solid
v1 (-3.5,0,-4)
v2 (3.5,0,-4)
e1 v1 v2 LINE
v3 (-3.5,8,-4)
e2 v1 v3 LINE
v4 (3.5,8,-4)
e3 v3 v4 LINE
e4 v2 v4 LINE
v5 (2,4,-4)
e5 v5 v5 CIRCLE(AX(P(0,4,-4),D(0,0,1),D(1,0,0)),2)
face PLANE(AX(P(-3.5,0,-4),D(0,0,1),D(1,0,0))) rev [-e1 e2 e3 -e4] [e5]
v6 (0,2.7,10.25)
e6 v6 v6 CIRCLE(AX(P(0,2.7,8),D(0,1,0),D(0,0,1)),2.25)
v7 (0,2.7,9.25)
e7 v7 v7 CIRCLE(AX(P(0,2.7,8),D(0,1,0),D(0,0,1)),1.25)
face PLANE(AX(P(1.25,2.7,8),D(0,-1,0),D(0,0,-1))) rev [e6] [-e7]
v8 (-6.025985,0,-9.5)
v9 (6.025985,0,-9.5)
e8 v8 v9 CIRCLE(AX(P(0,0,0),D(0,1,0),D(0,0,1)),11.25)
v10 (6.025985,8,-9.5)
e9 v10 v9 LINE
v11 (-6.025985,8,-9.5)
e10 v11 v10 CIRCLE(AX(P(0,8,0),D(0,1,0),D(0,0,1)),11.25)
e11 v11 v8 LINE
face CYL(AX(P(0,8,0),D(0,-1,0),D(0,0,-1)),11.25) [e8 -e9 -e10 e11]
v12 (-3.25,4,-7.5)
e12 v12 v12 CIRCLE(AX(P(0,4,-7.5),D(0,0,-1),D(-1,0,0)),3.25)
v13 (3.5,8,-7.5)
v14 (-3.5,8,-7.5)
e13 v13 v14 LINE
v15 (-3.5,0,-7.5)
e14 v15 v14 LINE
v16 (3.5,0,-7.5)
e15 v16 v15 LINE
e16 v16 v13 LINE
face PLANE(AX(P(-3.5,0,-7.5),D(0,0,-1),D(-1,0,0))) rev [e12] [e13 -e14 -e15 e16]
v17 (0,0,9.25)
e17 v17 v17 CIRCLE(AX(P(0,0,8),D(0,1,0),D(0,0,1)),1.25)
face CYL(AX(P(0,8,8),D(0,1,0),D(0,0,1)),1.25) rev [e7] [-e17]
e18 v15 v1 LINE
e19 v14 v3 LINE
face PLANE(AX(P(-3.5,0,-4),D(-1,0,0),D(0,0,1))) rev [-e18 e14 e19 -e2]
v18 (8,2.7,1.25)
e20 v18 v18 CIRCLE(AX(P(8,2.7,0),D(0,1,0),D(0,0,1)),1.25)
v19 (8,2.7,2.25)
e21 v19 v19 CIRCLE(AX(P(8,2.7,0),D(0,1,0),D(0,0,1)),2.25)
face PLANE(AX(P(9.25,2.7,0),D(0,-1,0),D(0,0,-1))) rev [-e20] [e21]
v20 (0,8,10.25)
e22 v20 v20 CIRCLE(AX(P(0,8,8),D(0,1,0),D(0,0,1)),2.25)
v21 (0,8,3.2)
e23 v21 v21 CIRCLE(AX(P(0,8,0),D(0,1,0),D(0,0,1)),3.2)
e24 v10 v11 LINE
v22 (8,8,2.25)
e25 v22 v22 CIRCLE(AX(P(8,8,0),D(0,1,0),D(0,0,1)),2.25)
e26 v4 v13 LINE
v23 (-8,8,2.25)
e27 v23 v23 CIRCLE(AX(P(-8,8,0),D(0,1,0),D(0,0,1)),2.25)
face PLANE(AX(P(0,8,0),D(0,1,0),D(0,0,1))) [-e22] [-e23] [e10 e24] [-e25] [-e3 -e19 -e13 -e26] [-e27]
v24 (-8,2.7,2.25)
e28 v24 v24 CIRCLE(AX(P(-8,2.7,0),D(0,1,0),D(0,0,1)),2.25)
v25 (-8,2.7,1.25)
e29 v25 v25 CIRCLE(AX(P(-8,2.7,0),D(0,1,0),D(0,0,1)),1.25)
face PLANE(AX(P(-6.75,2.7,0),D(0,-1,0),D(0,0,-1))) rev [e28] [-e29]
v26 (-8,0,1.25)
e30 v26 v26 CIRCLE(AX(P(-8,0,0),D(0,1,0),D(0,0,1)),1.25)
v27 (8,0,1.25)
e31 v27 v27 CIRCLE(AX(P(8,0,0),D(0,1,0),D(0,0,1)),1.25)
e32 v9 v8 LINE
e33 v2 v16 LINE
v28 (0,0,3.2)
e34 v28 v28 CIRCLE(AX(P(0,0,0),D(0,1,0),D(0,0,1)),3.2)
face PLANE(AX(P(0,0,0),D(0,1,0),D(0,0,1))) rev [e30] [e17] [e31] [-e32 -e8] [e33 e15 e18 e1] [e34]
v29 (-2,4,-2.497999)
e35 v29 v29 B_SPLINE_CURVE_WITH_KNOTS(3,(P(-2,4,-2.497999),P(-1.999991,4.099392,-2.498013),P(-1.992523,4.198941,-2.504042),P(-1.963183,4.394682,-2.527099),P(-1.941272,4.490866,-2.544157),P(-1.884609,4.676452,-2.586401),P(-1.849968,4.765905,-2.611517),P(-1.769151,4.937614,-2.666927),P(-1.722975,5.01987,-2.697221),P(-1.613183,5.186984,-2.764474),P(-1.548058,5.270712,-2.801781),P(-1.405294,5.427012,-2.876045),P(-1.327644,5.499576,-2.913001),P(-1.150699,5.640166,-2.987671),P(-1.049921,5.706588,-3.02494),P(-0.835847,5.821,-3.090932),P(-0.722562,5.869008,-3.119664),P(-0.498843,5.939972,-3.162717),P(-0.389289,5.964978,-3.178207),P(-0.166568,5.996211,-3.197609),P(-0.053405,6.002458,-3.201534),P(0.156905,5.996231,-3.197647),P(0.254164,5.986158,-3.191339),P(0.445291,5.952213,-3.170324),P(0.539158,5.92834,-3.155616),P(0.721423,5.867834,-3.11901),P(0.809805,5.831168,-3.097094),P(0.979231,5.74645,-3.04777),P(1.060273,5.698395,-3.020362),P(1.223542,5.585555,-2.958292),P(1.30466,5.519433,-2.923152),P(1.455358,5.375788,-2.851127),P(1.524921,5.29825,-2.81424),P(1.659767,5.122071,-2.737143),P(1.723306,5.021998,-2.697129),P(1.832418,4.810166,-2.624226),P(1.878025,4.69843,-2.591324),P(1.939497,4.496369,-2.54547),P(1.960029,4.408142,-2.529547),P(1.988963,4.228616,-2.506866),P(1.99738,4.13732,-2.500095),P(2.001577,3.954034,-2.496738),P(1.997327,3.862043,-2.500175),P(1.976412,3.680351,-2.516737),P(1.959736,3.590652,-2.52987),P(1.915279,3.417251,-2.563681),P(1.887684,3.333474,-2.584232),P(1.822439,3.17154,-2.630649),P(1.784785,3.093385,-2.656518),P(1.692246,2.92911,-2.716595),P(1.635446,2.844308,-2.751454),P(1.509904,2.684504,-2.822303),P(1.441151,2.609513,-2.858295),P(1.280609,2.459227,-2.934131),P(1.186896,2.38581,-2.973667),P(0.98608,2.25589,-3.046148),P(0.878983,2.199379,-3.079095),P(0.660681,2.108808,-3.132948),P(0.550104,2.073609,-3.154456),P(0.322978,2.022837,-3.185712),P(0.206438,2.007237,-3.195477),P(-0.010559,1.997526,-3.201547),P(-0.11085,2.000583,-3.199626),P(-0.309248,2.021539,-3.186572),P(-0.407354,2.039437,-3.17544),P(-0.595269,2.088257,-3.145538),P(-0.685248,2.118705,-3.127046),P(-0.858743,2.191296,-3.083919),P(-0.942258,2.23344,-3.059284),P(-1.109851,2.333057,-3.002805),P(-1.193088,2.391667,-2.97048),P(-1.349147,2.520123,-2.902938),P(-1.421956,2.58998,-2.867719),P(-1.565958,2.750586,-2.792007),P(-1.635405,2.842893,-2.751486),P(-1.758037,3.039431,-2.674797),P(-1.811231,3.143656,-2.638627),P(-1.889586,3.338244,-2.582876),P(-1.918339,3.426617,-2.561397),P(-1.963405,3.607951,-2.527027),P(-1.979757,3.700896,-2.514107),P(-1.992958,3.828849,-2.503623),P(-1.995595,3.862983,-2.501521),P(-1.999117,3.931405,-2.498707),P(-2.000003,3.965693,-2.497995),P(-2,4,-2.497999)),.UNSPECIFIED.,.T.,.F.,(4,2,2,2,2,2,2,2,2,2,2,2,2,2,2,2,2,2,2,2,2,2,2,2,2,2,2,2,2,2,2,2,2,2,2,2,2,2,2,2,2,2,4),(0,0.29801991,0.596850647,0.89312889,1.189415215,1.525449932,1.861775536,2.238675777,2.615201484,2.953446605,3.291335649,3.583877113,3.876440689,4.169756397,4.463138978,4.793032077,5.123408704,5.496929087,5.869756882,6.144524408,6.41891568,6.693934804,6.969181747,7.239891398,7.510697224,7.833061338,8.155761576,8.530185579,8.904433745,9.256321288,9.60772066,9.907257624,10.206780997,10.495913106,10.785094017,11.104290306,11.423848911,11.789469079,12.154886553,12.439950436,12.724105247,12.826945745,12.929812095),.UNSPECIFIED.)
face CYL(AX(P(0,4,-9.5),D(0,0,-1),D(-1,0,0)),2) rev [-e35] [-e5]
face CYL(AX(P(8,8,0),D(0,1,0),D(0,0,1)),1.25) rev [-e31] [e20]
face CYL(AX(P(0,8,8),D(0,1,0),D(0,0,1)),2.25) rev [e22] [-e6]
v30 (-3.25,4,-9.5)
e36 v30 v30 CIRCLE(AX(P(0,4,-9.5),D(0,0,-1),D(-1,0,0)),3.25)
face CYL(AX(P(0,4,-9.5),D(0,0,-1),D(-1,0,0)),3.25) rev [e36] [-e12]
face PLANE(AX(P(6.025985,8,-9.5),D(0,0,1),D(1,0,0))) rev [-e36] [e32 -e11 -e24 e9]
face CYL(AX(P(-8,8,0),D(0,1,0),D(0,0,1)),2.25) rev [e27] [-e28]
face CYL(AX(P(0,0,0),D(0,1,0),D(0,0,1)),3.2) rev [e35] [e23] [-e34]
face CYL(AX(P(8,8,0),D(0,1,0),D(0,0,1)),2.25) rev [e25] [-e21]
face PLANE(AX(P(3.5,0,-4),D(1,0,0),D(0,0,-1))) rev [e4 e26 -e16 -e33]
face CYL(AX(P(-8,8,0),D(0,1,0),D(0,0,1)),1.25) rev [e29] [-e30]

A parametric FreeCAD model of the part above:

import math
import FreeCAD as App
import Part
import Sketcher

V = App.Vector
Q = App.Units.Quantity

doc = App.newDocument("Part")
body = doc.addObject("PartDesign::Body", "Body")

# Sketch on XZ plane
sketch1 = body.newObject("Sketcher::SketchObject", "Sketch")
sketch1.AttachmentSupport = (doc.getObject("XZ_Plane"), [""])
sketch1.MapMode = "FlatFace"
sketch1.addGeometry([
    Part.LineSegment(V(6.025985, -9.5, 0), V(-6.025985, -9.5, 0)),
    Part.ArcOfCircle(Part.Circle(V(0, 0, 0), V(0, 0, 1), 11.25), math.radians(-57.612461), math.radians(237.612461)),
], False)
sketch1.addConstraint([
    Sketcher.Constraint("Coincident", 0, 1, 1, 1),
    Sketcher.Constraint("Coincident", 1, 2, 0, 2),
    Sketcher.Constraint("Horizontal", 0),
    Sketcher.Constraint("Coincident", 1, 3, -1, 1),
    Sketcher.Constraint("Radius", 1, Q("11.25 mm")),
    Sketcher.Constraint("DistanceY", 0, 1, -1, 1, Q("9.5 mm")),
])
pad1 = body.newObject("PartDesign::Pad", "Pad")
pad1.Profile = sketch1
pad1.Length = 8
pad1.Reversed = True

# Sketch on XZ plane
sketch2 = body.newObject("Sketcher::SketchObject", "Sketch001")
sketch2.AttachmentSupport = (doc.getObject("XZ_Plane"), [""])
sketch2.MapMode = "FlatFace"
sketch2.AttachmentOffset = App.Placement(V(0, 0, -8), App.Rotation())
sketch2.addGeometry(Part.Circle(V(0, 0, 0), V(0, 0, 1), 3.2), False)
sketch2.addConstraint([
    Sketcher.Constraint("Coincident", 0, 3, -1, 1),
    Sketcher.Constraint("Diameter", 0, Q("6.4 mm")),
])
pocket1 = body.newObject("PartDesign::Pocket", "Pocket")
pocket1.Profile = sketch2
pocket1.Type = "ThroughAll"
pocket1.Reversed = True

# Sketch on XZ plane
sketch3 = body.newObject("Sketcher::SketchObject", "Sketch002")
sketch3.AttachmentSupport = (doc.getObject("XZ_Plane"), [""])
sketch3.MapMode = "FlatFace"
sketch3.AttachmentOffset = App.Placement(V(0, 0, -8), App.Rotation())
sketch3.addGeometry([
    Part.LineSegment(V(-3.5, -7.5, 0), V(-3.5, -4, 0)),
    Part.LineSegment(V(-3.5, -4, 0), V(3.5, -4, 0)),
    Part.LineSegment(V(3.5, -4, 0), V(3.5, -7.5, 0)),
    Part.LineSegment(V(3.5, -7.5, 0), V(-3.5, -7.5, 0)),
], False)
sketch3.addConstraint([
    Sketcher.Constraint("Coincident", 0, 2, 1, 1),
    Sketcher.Constraint("Coincident", 1, 2, 2, 1),
    Sketcher.Constraint("Coincident", 2, 2, 3, 1),
    Sketcher.Constraint("Coincident", 3, 2, 0, 1),
    Sketcher.Constraint("Vertical", 0),
    Sketcher.Constraint("Horizontal", 1),
    Sketcher.Constraint("Vertical", 2),
    Sketcher.Constraint("Horizontal", 3),
    Sketcher.Constraint("DistanceX", 1, 1, 1, 2, Q("7 mm")),
    Sketcher.Constraint("DistanceY", 0, 1, 0, 2, Q("3.5 mm")),
    Sketcher.Constraint("DistanceY", 0, 2, -1, 1, Q("4 mm")),
    Sketcher.Constraint("DistanceX", 0, 2, -1, 1, Q("3.5 mm")),
])
pocket2 = body.newObject("PartDesign::Pocket", "Pocket001")
pocket2.Profile = sketch3
pocket2.Type = "ThroughAll"
pocket2.Reversed = True

# Sketch on XZ plane
sketch4 = body.newObject("Sketcher::SketchObject", "Sketch003")
sketch4.AttachmentSupport = (doc.getObject("XZ_Plane"), [""])
sketch4.MapMode = "FlatFace"
sketch4.AttachmentOffset = App.Placement(V(0, 0, -8), App.Rotation())
sketch4.addGeometry([
    Part.Circle(V(-8, 0, 0), V(0, 0, 1), 1.25),
    Part.Circle(V(0, 8, 0), V(0, 0, 1), 1.25),
    Part.Circle(V(8, 0, 0), V(0, 0, 1), 1.25),
], False)
sketch4.addConstraint([
    Sketcher.Constraint("Equal", 0, 1),
    Sketcher.Constraint("Equal", 1, 2),
    Sketcher.Constraint("Symmetric", 0, 3, 2, 3, -1, 1),
    Sketcher.Constraint("PointOnObject", 0, 3, -1),
    Sketcher.Constraint("PointOnObject", 1, 3, -2),
    Sketcher.Constraint("Diameter", 0, Q("2.5 mm")),
    Sketcher.Constraint("DistanceX", 0, 3, -1, 1, Q("8 mm")),
    Sketcher.Constraint("DistanceY", -1, 1, 1, 3, Q("8 mm")),
])
doc.recompute()
hole = body.newObject("PartDesign::Hole", "Hole")
hole.Profile = sketch4
hole.ThreadType = "None"
hole.Diameter = 2.5
hole.DepthType = "ThroughAll"
hole.HoleCutType = "Counterbore"
hole.HoleCutDiameter = 4.5
hole.HoleCutDepth = 5.3
hole.Reversed = True

# Sketch on XY plane
sketch5 = body.newObject("Sketcher::SketchObject", "Sketch004")
sketch5.AttachmentSupport = (doc.getObject("XY_Plane"), [""])
sketch5.MapMode = "FlatFace"
sketch5.AttachmentOffset = App.Placement(V(0, 0, -9.5), App.Rotation())
sketch5.addGeometry(Part.Circle(V(0, 4, 0), V(0, 0, 1), 2), False)
sketch5.addConstraint([
    Sketcher.Constraint("PointOnObject", 0, 3, -2),
    Sketcher.Constraint("Diameter", 0, Q("4 mm")),
    Sketcher.Constraint("DistanceY", -1, 1, 0, 3, Q("4 mm")),
])
doc.recompute()
hole2 = body.newObject("PartDesign::Hole", "Hole001")
hole2.Profile = sketch5
hole2.ThreadType = "None"
hole2.Diameter = 4
hole2.DepthType = "Dimension"
hole2.Depth = 9.499
hole2.DrillPoint = "Angled"
hole2.DrillPointAngle = 118
hole2.HoleCutType = "Counterbore"
hole2.HoleCutDiameter = 6.5
hole2.HoleCutDepth = 2
hole2.Reversed = True

doc.recompute()
